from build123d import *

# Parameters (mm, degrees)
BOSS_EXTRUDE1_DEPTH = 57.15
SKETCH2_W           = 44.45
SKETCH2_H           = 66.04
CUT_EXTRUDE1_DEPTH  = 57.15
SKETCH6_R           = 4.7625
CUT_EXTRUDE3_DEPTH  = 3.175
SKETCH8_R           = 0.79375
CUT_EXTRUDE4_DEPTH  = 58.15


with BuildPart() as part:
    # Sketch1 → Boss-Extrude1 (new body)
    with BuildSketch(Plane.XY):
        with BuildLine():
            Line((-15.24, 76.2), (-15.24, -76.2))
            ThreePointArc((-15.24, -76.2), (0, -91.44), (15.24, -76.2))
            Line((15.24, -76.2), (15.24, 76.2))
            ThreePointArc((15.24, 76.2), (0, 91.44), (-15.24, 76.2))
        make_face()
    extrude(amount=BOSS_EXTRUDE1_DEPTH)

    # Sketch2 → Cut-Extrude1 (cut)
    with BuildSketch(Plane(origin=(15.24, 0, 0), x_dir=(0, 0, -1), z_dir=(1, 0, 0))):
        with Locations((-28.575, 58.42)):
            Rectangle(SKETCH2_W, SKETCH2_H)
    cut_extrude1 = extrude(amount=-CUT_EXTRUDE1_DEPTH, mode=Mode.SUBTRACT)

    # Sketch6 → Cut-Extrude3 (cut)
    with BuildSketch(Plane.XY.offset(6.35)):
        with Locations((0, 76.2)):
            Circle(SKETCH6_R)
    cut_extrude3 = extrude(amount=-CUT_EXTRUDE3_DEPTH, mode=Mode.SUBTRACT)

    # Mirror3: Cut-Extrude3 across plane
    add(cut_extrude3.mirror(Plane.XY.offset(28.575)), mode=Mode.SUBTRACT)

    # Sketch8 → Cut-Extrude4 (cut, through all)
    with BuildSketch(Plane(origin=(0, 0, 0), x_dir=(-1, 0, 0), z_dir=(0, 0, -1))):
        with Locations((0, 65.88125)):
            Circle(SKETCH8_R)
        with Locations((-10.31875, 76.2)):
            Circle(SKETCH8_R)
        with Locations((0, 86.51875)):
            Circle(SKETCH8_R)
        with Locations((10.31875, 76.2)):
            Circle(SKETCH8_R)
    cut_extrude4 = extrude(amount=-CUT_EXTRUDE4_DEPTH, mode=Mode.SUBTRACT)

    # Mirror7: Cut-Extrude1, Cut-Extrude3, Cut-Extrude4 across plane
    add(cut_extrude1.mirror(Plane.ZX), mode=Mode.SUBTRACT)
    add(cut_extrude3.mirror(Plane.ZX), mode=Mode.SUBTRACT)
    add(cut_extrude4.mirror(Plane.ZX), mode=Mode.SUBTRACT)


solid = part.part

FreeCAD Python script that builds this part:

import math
import FreeCAD as App
import Part
import Sketcher

V = App.Vector
Q = App.Units.Quantity


def add_polygon(sketch, points):
    """Adds a closed chain of lines whose ends are joined by coincident constraints."""
    first, n = sketch.GeometryCount, len(points)
    for a, b in zip(points, points[1:] + points[:1]):
        sketch.addGeometry(Part.LineSegment(App.Vector(*a, 0), App.Vector(*b, 0)), False)
    for i in range(n):
        sketch.addConstraint(Sketcher.Constraint("Coincident", first + i, 2, first + (i + 1) % n, 1))

doc = App.newDocument("Part")
params = doc.addObject("Spreadsheet::Sheet", "Params")
for row, (alias, value) in enumerate([
    ("sketch1_radius", "0.6 in"),
    ("sketch1_height", "6 in"),
    ("pad1_length", "2.25 in"),
    ("sketch2_width", "2.6 in"),
    ("sketch2_height", "1.75 in"),
    ("pocket1_length", "2.25 in"),
    ("sketch3_diameter", "0.375 in"),
    ("pocket2_length", "0.125 in"),
    ("sketch4_diameter", "0.0625 in"),
], start=1):
    params.set(f"A{row}", alias)
    params.set(f"B{row}", "=" + value)
    params.setAlias(f"B{row}", alias)

body = doc.addObject("PartDesign::Body", "Body")

# Sketch on XY plane
sketch1 = body.newObject("Sketcher::SketchObject", "Sketch")
sketch1.AttachmentSupport = (doc.getObject("XY_Plane"), [""])
sketch1.MapMode = "FlatFace"
sketch1.addGeometry([
    Part.LineSegment(V(-15, 76, 0), V(-15, -76, 0)),
    Part.ArcOfCircle(Part.Circle(V(0, -76, 0), V(0, 0, 1), 15), math.radians(180), math.radians(360)),
    Part.LineSegment(V(15, -76, 0), V(15, 76, 0)),
    Part.ArcOfCircle(Part.Circle(V(0, 76, 0), V(0, 0, 1), 15), math.radians(0), math.radians(180)),
], False)
sketch1.addConstraint([
    Sketcher.Constraint("Tangent", 0, 2, 1, 1),
    Sketcher.Constraint("Tangent", 1, 2, 2, 1),
    Sketcher.Constraint("Tangent", 2, 2, 3, 1),
    Sketcher.Constraint("Tangent", 3, 2, 0, 1),
    Sketcher.Constraint("Vertical", 0),
    Sketcher.Constraint("Vertical", 2),
    Sketcher.Constraint("Symmetric", 1, 3, 3, 3, -1, 1),
    Sketcher.Constraint("Radius", 1, Q("0.6 in")),
    Sketcher.Constraint("DistanceY", 0, 2, 0, 1, Q("6 in")),
])
sketch1.setExpression("Constraints[7]", "Params.sketch1_radius")
sketch1.setExpression("Constraints[8]", "Params.sketch1_height")
pad1 = body.newObject("PartDesign::Pad", "Pad")
pad1.Profile = sketch1
pad1.setExpression("Length", "Params.pad1_length")

# Sketch on YZ plane
sketch2 = body.newObject("Sketcher::SketchObject", "Sketch001")
sketch2.AttachmentSupport = (doc.getObject("YZ_Plane"), [""])
sketch2.MapMode = "FlatFace"
sketch2.AttachmentOffset = App.Placement(V(0, 0, 0.6 * 25.4), App.Rotation())
add_polygon(sketch2, [(91, 51), (25, 51), (25, 6), (91, 6)])  # lines 0-3
sketch2.addConstraint([
    Sketcher.Constraint("Horizontal", 0),
    Sketcher.Constraint("Vertical", 1),
    Sketcher.Constraint("Horizontal", 2),
    Sketcher.Constraint("Vertical", 3),
    Sketcher.Constraint("DistanceX", 0, 2, 0, 1, Q("2.6 in")),
    Sketcher.Constraint("DistanceX", -1, 1, 0, 2, Q("1 in")),
    Sketcher.Constraint("DistanceY", -1, 1, 0, 2, Q("2 in")),
    Sketcher.Constraint("DistanceY", 1, 2, 1, 1, Q("1.75 in")),
])
sketch2.setExpression("Constraints[8]", "Params.sketch2_width")
sketch2.setExpression("Constraints[11]", "Params.sketch2_height")
pocket1 = body.newObject("PartDesign::Pocket", "Pocket")
pocket1.Profile = sketch2
pocket1.setExpression("Length", "Params.pocket1_length")

# Sketch on XY plane
sketch3 = body.newObject("Sketcher::SketchObject", "Sketch002")
sketch3.AttachmentSupport = (doc.getObject("XY_Plane"), [""])
sketch3.MapMode = "FlatFace"
sketch3.AttachmentOffset = App.Placement(V(0, 0, 0.25 * 25.4), App.Rotation())
sketch3.addGeometry(Part.Circle(V(0, 76.2, 0), V(0, 0, 1), 4.8), False)
sketch3.addConstraint([
    Sketcher.Constraint("PointOnObject", 0, 3, -2),
    Sketcher.Constraint("Diameter", 0, Q("0.375 in")),
    Sketcher.Constraint("DistanceY", -1, 1, 0, 3, Q("3 in")),
])
sketch3.setExpression("Constraints[1]", "Params.sketch3_diameter")
pocket2 = body.newObject("PartDesign::Pocket", "Pocket001")
pocket2.Profile = sketch3
pocket2.setExpression("Length", "Params.pocket2_length")
doc.recompute()

datumplane = body.newObject("PartDesign::Plane", "DatumPlane")
datumplane.AttachmentSupport = (doc.getObject("XY_Plane"), [""])
datumplane.MapMode = "FlatFace"
datumplane.AttachmentOffset = App.Placement(V(0, 0, 1.125 * 25.4), App.Rotation())
mirrored = body.newObject("PartDesign::Mirrored", "Mirrored")
mirrored.Originals = [pocket2]
mirrored.MirrorPlane = (datumplane, [""])
body.Tip = mirrored

# Sketch on XY plane
sketch4 = body.newObject("Sketcher::SketchObject", "Sketch003")
sketch4.AttachmentSupport = (doc.getObject("XY_Plane"), [""])
sketch4.MapMode = "FlatFace"
sketch4.addGeometry([
    Part.Circle(V(0, 65.9, 0), V(0, 0, 1), 0.8),
    Part.Circle(V(10.3, 76.2, 0), V(0, 0, 1), 0.8),
    Part.Circle(V(0, 86.5, 0), V(0, 0, 1), 0.8),
    Part.Circle(V(-10.3, 76.2, 0), V(0, 0, 1), 0.8),
], False)
sketch4.addConstraint([
    Sketcher.Constraint("Equal", 0, 1),
    Sketcher.Constraint("Equal", 1, 2),
    Sketcher.Constraint("Equal", 2, 3),
    Sketcher.Constraint("Symmetric", 1, 3, 3, 3, -2),
    Sketcher.Constraint("PointOnObject", 0, 3, -2),
    Sketcher.Constraint("PointOnObject", 2, 3, -2),
    Sketcher.Constraint("Diameter", 0, Q("0.0625 in")),
    Sketcher.Constraint("DistanceY", -1, 1, 1, 3, Q("3 in")),
    Sketcher.Constraint("DistanceY", -1, 1, 0, 3, Q("2.59375 in")),
    Sketcher.Constraint("DistanceX", -1, 1, 1, 3, Q("0.40625 in")),
    Sketcher.Constraint("DistanceY", -1, 1, 2, 3, Q("3.40625 in")),
])
sketch4.setExpression("Constraints[6]", "Params.sketch4_diameter")
pocket3 = body.newObject("PartDesign::Pocket", "Pocket002")
pocket3.Profile = sketch4
pocket3.Type = "ThroughAll"
pocket3.Reversed = True
doc.recompute()

mirrored2 = body.newObject("PartDesign::Mirrored", "Mirrored001")
mirrored2.Originals = [pocket1, pocket2, pocket3]
mirrored2.MirrorPlane = (doc.getObject("XZ_Plane"), [""])
body.Tip = mirrored2

doc.recompute()
